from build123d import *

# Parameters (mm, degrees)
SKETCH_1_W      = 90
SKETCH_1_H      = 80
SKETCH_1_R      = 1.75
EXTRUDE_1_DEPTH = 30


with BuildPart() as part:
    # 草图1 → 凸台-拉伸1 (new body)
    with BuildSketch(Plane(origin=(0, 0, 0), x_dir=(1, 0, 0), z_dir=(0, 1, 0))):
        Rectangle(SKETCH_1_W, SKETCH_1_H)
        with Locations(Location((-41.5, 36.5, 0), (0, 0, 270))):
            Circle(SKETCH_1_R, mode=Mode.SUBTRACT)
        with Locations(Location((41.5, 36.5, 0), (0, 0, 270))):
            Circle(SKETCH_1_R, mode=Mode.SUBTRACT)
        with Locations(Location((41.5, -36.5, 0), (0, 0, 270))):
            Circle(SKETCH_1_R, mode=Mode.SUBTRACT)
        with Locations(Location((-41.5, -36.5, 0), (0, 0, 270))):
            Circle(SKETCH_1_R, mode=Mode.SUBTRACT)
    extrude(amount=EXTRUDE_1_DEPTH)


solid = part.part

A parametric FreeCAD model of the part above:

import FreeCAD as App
import Part
import Sketcher
Q = App.Units.Quantity


def add_polygon(sketch, points):
    """Adds a closed chain of lines whose ends are joined by coincident constraints."""
    first, n = sketch.GeometryCount, len(points)
    for a, b in zip(points, points[1:] + points[:1]):
        sketch.addGeometry(Part.LineSegment(App.Vector(*a, 0), App.Vector(*b, 0)), False)
    for i in range(n):
        sketch.addConstraint(Sketcher.Constraint("Coincident", first + i, 2, first + (i + 1) % n, 1))

doc = App.newDocument("Part")
body = doc.addObject("PartDesign::Body", "Body")

# Sketch on XZ plane
sketch1 = body.newObject("Sketcher::SketchObject", "Sketch")
sketch1.AttachmentSupport = (doc.getObject("XZ_Plane"), [""])
sketch1.MapMode = "FlatFace"
add_polygon(sketch1, [(-45, -40), (-45, 40), (45, 40), (45, -40)])  # lines 0-3
sketch1.addGeometry(Part.Circle(App.Vector(-41.5, 36.5, 0), App.Vector(0, 0, 1), 1.75), False)  # 4
sketch1.addGeometry(Part.Circle(App.Vector(41.5, 36.5, 0), App.Vector(0, 0, 1), 1.75), False)  # 5
sketch1.addGeometry(Part.Circle(App.Vector(-41.5, -36.5, 0), App.Vector(0, 0, 1), 1.75), False)  # 6
sketch1.addGeometry(Part.Circle(App.Vector(41.5, -36.5, 0), App.Vector(0, 0, 1), 1.75), False)  # 7
sketch1.addConstraint([
    Sketcher.Constraint("Vertical", 0),
    Sketcher.Constraint("Horizontal", 1),
    Sketcher.Constraint("Vertical", 2),
    Sketcher.Constraint("Horizontal", 3),
    Sketcher.Constraint("Equal", 4, 5),
    Sketcher.Constraint("Equal", 5, 6),
    Sketcher.Constraint("Equal", 6, 7),
    Sketcher.Constraint("Symmetric", 5, 3, 6, 3, -1, 1),
    Sketcher.Constraint("Symmetric", 4, 3, 7, 3, -1, 1),
    Sketcher.Constraint("Symmetric", 0, 2, 2, 2, -1, 1),
    Sketcher.Constraint("Symmetric", 4, 3, 5, 3, -2),
    Sketcher.Constraint("Diameter", 4, Q("3.5 mm")),
    Sketcher.Constraint("DistanceX", 1, 1, 1, 2, Q("90 mm")),
    Sketcher.Constraint("DistanceY", 0, 1, 0, 2, Q("80 mm")),
    Sketcher.Constraint("DistanceX", 4, 3, 5, 3, Q("83 mm")),
    Sketcher.Constraint("DistanceY", 6, 3, 4, 3, Q("73 mm")),
])
pad1 = body.newObject("PartDesign::Pad", "Pad")
pad1.Profile = sketch1
pad1.Length = 30
pad1.Reversed = True

doc.recompute()
